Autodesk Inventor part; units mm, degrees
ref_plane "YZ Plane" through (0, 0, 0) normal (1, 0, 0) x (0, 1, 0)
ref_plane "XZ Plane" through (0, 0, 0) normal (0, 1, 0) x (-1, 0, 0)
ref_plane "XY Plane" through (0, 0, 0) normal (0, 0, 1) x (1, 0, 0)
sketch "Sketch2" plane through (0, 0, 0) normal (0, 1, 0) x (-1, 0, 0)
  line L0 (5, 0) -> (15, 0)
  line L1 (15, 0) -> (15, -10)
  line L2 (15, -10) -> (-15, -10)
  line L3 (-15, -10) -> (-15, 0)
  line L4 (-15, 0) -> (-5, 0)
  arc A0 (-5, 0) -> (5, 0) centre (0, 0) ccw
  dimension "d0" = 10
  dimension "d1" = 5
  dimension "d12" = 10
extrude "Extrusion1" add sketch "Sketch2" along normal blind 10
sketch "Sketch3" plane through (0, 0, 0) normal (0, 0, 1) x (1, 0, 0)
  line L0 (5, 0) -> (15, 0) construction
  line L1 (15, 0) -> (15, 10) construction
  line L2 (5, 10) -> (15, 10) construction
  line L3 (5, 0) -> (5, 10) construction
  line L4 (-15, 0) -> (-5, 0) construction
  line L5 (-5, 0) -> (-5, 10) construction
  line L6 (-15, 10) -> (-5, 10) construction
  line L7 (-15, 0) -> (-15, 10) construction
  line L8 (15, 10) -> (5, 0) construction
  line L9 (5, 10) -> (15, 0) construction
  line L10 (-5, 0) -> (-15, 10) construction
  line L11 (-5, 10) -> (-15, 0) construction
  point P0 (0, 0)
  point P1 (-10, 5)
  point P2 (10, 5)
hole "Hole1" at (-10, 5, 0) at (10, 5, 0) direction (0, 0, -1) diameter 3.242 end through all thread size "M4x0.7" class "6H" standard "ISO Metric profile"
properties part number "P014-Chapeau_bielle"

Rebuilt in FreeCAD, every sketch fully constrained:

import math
import FreeCAD as App
import Part
import Sketcher
Q = App.Units.Quantity

doc = App.newDocument("Part")
body = doc.addObject("PartDesign::Body", "Body")

sketch1 = body.newObject("Sketcher::SketchObject", "Sketch")
sketch1.AttachmentSupport = (doc.getObject("XZ_Plane"), [""])
sketch1.MapMode = "FlatFace"
sketch1.addGeometry([
    Part.LineSegment(App.Vector(-15, 0, 0), App.Vector(-5, 0, 0)),
    Part.ArcOfCircle(Part.Circle(App.Vector(0, 0, 0), App.Vector(0, 0, 1), 5), math.radians(180), math.radians(360)),
    Part.LineSegment(App.Vector(5, 0, 0), App.Vector(15, 0, 0)),
    Part.LineSegment(App.Vector(15, 0, 0), App.Vector(15, -10, 0)),
    Part.LineSegment(App.Vector(15, -10, 0), App.Vector(-15, -10, 0)),
    Part.LineSegment(App.Vector(-15, -10, 0), App.Vector(-15, 0, 0)),
], False)
sketch1.addConstraint([
    Sketcher.Constraint("Coincident", 0, 2, 1, 1),
    Sketcher.Constraint("Coincident", 1, 2, 2, 1),
    Sketcher.Constraint("Coincident", 2, 2, 3, 1),
    Sketcher.Constraint("Coincident", 3, 2, 4, 1),
    Sketcher.Constraint("Coincident", 4, 2, 5, 1),
    Sketcher.Constraint("Coincident", 5, 2, 0, 1),
    Sketcher.Constraint("Horizontal", 0),
    Sketcher.Constraint("Horizontal", 2),
    Sketcher.Constraint("Vertical", 3),
    Sketcher.Constraint("Horizontal", 4),
    Sketcher.Constraint("Vertical", 5),
    Sketcher.Constraint("Coincident", 1, 3, -1, 1),
    Sketcher.Constraint("Symmetric", 2, 2, 5, 2, -1, 1),
    Sketcher.Constraint("PointOnObject", 0, 2, -1),
    Sketcher.Constraint("Equal", 2, 3),
    Sketcher.Constraint("Radius", 1, Q("5 mm")),
    Sketcher.Constraint("DistanceX", 0, 1, 0, 2, Q("10 mm")),
])
pad1 = body.newObject("PartDesign::Pad", "Pad")
pad1.Profile = sketch1
pad1.Length = 10
pad1.Reversed = True

sketch2 = body.newObject("Sketcher::SketchObject", "Sketch001")
sketch2.AttachmentSupport = (doc.getObject("XY_Plane"), [""])
sketch2.MapMode = "FlatFace"
sketch2.addGeometry([
    Part.Circle(App.Vector(-10, 5, 0), App.Vector(0, 0, 1), 1.6),
    Part.Circle(App.Vector(10, 5, 0), App.Vector(0, 0, 1), 1.6),
], False)
sketch2.addConstraint([
    Sketcher.Constraint("Equal", 0, 1),
    Sketcher.Constraint("Symmetric", 0, 3, 1, 3, -2),
    Sketcher.Constraint("Diameter", 0, Q("3.242 mm")),
    Sketcher.Constraint("DistanceX", 0, 3, -1, 1, Q("10 mm")),
    Sketcher.Constraint("DistanceY", -1, 1, 0, 3, Q("5 mm")),
])
doc.recompute()
hole = body.newObject("PartDesign::Hole", "Hole")
hole.Profile = sketch2
hole.ThreadType = "None"
hole.Diameter = 3.242
hole.DepthType = "ThroughAll"

doc.recompute()
